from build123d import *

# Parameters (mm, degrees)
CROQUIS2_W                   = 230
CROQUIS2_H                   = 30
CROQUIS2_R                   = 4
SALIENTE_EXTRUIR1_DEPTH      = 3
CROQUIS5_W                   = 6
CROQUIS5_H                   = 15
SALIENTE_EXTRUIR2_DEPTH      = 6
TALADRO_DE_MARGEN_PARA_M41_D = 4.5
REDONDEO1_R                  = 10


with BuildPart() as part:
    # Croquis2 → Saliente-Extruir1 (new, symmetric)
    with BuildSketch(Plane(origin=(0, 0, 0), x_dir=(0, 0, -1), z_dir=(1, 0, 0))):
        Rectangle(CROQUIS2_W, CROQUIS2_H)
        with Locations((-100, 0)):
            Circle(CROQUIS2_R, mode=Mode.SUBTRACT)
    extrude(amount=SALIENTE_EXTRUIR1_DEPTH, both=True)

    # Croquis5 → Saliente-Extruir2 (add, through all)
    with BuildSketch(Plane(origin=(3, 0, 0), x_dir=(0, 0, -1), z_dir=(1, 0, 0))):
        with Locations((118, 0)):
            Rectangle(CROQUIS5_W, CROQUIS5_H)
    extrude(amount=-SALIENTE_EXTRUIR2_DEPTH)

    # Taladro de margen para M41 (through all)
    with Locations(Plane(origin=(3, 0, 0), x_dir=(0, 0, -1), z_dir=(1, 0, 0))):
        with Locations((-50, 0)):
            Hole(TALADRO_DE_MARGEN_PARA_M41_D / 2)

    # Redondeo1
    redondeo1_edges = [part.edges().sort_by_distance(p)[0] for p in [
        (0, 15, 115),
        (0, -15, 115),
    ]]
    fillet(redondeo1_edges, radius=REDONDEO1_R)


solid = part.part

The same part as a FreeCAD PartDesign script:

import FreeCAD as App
import Part
import Sketcher
from FreeCAD import Vector
Q = App.Units.Quantity


def edges_at(feature, points):
    """Names of the edges that pass closest to the given points."""
    edges = feature.Shape.Edges
    near = lambda p: min(range(len(edges)), key=lambda i: edges[i].distToShape(Part.Vertex(*p))[0])
    return sorted({f"Edge{near(p) + 1}" for p in points})


def add_polygon(sketch, points):
    """Adds a closed chain of lines whose ends are joined by coincident constraints."""
    first, n = sketch.GeometryCount, len(points)
    for a, b in zip(points, points[1:] + points[:1]):
        sketch.addGeometry(Part.LineSegment(App.Vector(*a, 0), App.Vector(*b, 0)), False)
    for i in range(n):
        sketch.addConstraint(Sketcher.Constraint("Coincident", first + i, 2, first + (i + 1) % n, 1))

doc = App.newDocument("Part")
body = doc.addObject("PartDesign::Body", "Body")

# Sketch on YZ plane
sketch1 = body.newObject("Sketcher::SketchObject", "Sketch")
sketch1.AttachmentSupport = (doc.getObject("YZ_Plane"), [""])
sketch1.MapMode = "FlatFace"
add_polygon(sketch1, [(15, 115), (-15, 115), (-15, -115), (15, -115)])  # lines 0-3
sketch1.addGeometry(Part.Circle(Vector(0, 100, 0), Vector(0, 0, 1), 4), False)  # 4
sketch1.addConstraint([
    Sketcher.Constraint("Horizontal", 0),
    Sketcher.Constraint("Vertical", 1),
    Sketcher.Constraint("Horizontal", 2),
    Sketcher.Constraint("Vertical", 3),
    Sketcher.Constraint("Symmetric", 0, 2, 2, 2, -1, 1),
    Sketcher.Constraint("PointOnObject", 4, 3, -2),
    Sketcher.Constraint("Diameter", 4, Q("8 mm")),
    Sketcher.Constraint("DistanceX", 0, 2, 0, 1, Q("30 mm")),
    Sketcher.Constraint("DistanceY", 1, 2, 1, 1, Q("230 mm")),
    Sketcher.Constraint("DistanceY", -1, 1, 4, 3, Q("100 mm")),
])
pad1 = body.newObject("PartDesign::Pad", "Pad")
pad1.Profile = sketch1
pad1.Length = 6
pad1.Midplane = True

# Sketch on YZ plane
sketch2 = body.newObject("Sketcher::SketchObject", "Sketch001")
sketch2.AttachmentSupport = (doc.getObject("YZ_Plane"), [""])
sketch2.MapMode = "FlatFace"
sketch2.AttachmentOffset = App.Placement(Vector(0, 0, 3), App.Rotation())
add_polygon(sketch2, [(8, -115), (-8, -115), (-8, -121), (8, -121)])  # lines 0-3
sketch2.addConstraint([
    Sketcher.Constraint("Horizontal", 0),
    Sketcher.Constraint("Vertical", 1),
    Sketcher.Constraint("Horizontal", 2),
    Sketcher.Constraint("Vertical", 3),
    Sketcher.Constraint("DistanceX", 0, 2, 0, 1, Q("15 mm")),
    Sketcher.Constraint("DistanceY", 1, 2, 1, 1, Q("6 mm")),
    Sketcher.Constraint("DistanceY", 0, 2, -1, 1, Q("115 mm")),
    Sketcher.Constraint("DistanceX", 0, 2, -1, 1, Q("7.5 mm")),
])
pad2 = body.newObject("PartDesign::Pad", "Pad001")
pad2.Profile = sketch2
pad2.Length = 6
pad2.Reversed = True

# Sketch on YZ plane
sketch3 = body.newObject("Sketcher::SketchObject", "Sketch002")
sketch3.AttachmentSupport = (doc.getObject("YZ_Plane"), [""])
sketch3.MapMode = "FlatFace"
sketch3.AttachmentOffset = App.Placement(Vector(0, 0, 3), App.Rotation())
sketch3.addGeometry(Part.Circle(Vector(0, 50, 0), Vector(0, 0, 1), 2.2), False)
sketch3.addConstraint([
    Sketcher.Constraint("PointOnObject", 0, 3, -2),
    Sketcher.Constraint("Diameter", 0, Q("4.5 mm")),
    Sketcher.Constraint("DistanceY", -1, 1, 0, 3, Q("50 mm")),
])
doc.recompute()
hole = body.newObject("PartDesign::Hole", "Hole")
hole.Profile = sketch3
hole.ThreadType = "None"
hole.Diameter = 4.5
hole.DepthType = "ThroughAll"
doc.recompute()

fillet = body.newObject("PartDesign::Fillet", "Fillet")
fillet.Base = (hole, edges_at(hole, [(0, 15, 115), (0, -15, 115)]))
fillet.Radius = 10

doc.recompute()
